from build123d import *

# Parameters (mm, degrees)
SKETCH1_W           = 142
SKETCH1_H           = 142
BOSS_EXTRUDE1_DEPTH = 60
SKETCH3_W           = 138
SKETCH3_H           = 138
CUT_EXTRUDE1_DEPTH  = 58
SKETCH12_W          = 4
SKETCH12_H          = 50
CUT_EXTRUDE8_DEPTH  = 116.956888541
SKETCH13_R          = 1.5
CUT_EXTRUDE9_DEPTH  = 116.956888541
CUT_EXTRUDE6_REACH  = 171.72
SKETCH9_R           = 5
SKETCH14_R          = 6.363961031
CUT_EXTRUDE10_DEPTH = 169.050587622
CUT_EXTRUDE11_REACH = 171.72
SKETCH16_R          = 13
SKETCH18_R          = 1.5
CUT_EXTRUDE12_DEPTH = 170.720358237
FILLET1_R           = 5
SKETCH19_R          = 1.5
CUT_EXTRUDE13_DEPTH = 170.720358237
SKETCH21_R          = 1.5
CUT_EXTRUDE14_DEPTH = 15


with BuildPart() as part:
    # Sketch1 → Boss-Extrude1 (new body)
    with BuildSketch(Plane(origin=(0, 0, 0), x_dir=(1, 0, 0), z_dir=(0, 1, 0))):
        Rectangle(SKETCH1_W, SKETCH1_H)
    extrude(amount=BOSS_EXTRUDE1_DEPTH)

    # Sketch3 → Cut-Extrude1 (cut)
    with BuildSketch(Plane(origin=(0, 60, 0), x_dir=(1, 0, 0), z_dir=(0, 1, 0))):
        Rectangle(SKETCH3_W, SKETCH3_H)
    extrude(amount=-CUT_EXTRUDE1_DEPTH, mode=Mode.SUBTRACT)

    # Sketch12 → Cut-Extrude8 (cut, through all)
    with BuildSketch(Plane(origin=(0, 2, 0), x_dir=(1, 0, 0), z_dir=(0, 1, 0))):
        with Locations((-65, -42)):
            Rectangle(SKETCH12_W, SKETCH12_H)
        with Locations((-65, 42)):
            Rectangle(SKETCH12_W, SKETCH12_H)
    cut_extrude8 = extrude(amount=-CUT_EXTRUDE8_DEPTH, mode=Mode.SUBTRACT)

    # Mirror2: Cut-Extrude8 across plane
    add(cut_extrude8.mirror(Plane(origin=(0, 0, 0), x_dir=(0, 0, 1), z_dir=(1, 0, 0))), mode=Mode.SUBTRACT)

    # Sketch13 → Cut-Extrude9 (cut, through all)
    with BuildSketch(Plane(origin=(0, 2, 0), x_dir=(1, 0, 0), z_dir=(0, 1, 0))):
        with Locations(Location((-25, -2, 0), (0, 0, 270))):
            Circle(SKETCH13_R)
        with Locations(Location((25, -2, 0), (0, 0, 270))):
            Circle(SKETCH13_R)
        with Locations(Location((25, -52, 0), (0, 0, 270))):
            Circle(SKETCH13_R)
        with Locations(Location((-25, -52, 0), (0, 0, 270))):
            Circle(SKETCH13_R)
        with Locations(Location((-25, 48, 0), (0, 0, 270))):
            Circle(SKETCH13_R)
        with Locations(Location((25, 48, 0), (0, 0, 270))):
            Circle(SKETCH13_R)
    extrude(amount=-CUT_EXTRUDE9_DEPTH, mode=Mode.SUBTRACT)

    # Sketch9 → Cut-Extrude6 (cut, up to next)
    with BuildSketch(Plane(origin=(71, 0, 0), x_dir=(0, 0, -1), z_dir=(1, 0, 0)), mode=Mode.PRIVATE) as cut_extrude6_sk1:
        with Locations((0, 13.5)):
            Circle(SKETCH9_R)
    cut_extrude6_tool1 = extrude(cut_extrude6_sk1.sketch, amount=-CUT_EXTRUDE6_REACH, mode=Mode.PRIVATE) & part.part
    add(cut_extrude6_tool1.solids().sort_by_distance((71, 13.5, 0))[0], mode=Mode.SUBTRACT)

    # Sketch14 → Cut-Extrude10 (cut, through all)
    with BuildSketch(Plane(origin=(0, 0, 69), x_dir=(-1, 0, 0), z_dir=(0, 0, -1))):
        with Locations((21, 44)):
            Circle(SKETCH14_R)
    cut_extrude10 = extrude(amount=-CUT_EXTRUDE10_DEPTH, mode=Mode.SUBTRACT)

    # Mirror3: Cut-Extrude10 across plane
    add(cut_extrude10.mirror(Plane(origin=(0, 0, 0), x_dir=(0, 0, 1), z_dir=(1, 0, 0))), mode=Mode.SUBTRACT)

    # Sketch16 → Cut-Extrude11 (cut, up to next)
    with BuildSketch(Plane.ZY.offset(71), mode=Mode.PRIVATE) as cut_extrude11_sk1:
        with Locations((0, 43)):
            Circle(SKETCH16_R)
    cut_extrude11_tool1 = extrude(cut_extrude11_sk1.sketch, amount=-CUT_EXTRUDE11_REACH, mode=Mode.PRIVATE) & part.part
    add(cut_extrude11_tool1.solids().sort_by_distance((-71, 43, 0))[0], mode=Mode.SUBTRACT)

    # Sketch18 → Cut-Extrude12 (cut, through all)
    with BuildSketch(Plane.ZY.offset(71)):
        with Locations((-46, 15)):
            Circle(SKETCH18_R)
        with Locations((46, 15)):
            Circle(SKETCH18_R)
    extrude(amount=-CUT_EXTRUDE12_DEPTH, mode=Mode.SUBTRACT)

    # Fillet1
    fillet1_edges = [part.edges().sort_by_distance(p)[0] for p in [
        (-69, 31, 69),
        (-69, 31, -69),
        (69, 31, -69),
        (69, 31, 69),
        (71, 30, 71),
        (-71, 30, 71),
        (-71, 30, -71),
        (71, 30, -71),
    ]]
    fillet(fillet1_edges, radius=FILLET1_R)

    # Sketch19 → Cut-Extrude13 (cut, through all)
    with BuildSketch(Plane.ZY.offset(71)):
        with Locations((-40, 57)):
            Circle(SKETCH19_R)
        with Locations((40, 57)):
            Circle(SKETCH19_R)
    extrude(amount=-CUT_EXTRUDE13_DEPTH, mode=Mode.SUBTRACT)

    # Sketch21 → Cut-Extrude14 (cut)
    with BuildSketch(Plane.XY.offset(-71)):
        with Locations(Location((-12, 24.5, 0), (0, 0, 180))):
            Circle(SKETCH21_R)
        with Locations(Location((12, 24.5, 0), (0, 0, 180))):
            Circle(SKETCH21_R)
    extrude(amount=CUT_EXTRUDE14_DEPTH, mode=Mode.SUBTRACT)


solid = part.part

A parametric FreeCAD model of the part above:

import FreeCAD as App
import Part
import Sketcher
Q = App.Units.Quantity


def edges_at(feature, points):
    """Names of the edges that pass closest to the given points."""
    edges = feature.Shape.Edges
    near = lambda p: min(range(len(edges)), key=lambda i: edges[i].distToShape(Part.Vertex(*p))[0])
    return sorted({f"Edge{near(p) + 1}" for p in points})


def add_polygon(sketch, points):
    """Adds a closed chain of lines whose ends are joined by coincident constraints."""
    first, n = sketch.GeometryCount, len(points)
    for a, b in zip(points, points[1:] + points[:1]):
        sketch.addGeometry(Part.LineSegment(App.Vector(*a, 0), App.Vector(*b, 0)), False)
    for i in range(n):
        sketch.addConstraint(Sketcher.Constraint("Coincident", first + i, 2, first + (i + 1) % n, 1))

doc = App.newDocument("Part")
body = doc.addObject("PartDesign::Body", "Body")

sketch1 = body.newObject("Sketcher::SketchObject", "Sketch")
sketch1.AttachmentSupport = (doc.getObject("XZ_Plane"), [""])
sketch1.MapMode = "FlatFace"
add_polygon(sketch1, [(-71, -71), (-71, 71), (71, 71), (71, -71)])
sketch1.addConstraint(Sketcher.Constraint("Vertical", 0))
sketch1.addConstraint(Sketcher.Constraint("Horizontal", 1))
sketch1.addConstraint(Sketcher.Constraint("Vertical", 2))
sketch1.addConstraint(Sketcher.Constraint("Horizontal", 3))
sketch1.addConstraint(Sketcher.Constraint("Symmetric", 0, 2, 2, 2, -1, 1))
sketch1.addConstraint(Sketcher.Constraint("Equal", 3, 0))
sketch1.addConstraint(Sketcher.Constraint("DistanceX", 1, 1, 1, 2, Q("142 mm")))
pad1 = body.newObject("PartDesign::Pad", "Pad")
pad1.Profile = sketch1
pad1.Length = 60
pad1.Reversed = True

sketch2 = body.newObject("Sketcher::SketchObject", "Sketch001")
sketch2.AttachmentSupport = (doc.getObject("XZ_Plane"), [""])
sketch2.MapMode = "FlatFace"
sketch2.AttachmentOffset = App.Placement(App.Vector(0, 0, -60), App.Rotation())
add_polygon(sketch2, [(-69, -69), (-69, 69), (69, 69), (69, -69)])
sketch2.addConstraint(Sketcher.Constraint("Vertical", 0))
sketch2.addConstraint(Sketcher.Constraint("Horizontal", 1))
sketch2.addConstraint(Sketcher.Constraint("Vertical", 2))
sketch2.addConstraint(Sketcher.Constraint("Horizontal", 3))
sketch2.addConstraint(Sketcher.Constraint("Symmetric", 0, 2, 2, 2, -1, 1))
sketch2.addConstraint(Sketcher.Constraint("Equal", 3, 0))
sketch2.addConstraint(Sketcher.Constraint("DistanceX", 1, 1, 1, 2, Q("138 mm")))
pocket1 = body.newObject("PartDesign::Pocket", "Pocket")
pocket1.Profile = sketch2
pocket1.Length = 58
pocket1.Reversed = True

sketch3 = body.newObject("Sketcher::SketchObject", "Sketch002")
sketch3.AttachmentSupport = (doc.getObject("XZ_Plane"), [""])
sketch3.MapMode = "FlatFace"
sketch3.AttachmentOffset = App.Placement(App.Vector(0, 0, -2), App.Rotation())
add_polygon(sketch3, [(-67, 17), (-67, 67), (-63, 67), (-63, 17)])
add_polygon(sketch3, [(-67, -67), (-67, -17), (-63, -17), (-63, -67)])
sketch3.addConstraint(Sketcher.Constraint("Vertical", 0))
sketch3.addConstraint(Sketcher.Constraint("Horizontal", 1))
sketch3.addConstraint(Sketcher.Constraint("Vertical", 2))
sketch3.addConstraint(Sketcher.Constraint("Horizontal", 3))
sketch3.addConstraint(Sketcher.Constraint("Vertical", 4))
sketch3.addConstraint(Sketcher.Constraint("Horizontal", 5))
sketch3.addConstraint(Sketcher.Constraint("Vertical", 6))
sketch3.addConstraint(Sketcher.Constraint("Horizontal", 7))
sketch3.addConstraint(Sketcher.Constraint("Symmetric", 3, 2, 4, 2, -1))
sketch3.addConstraint(Sketcher.Constraint("Symmetric", 1, 2, 6, 2, -1))
sketch3.addConstraint(Sketcher.Constraint("DistanceX", 1, 1, 1, 2, Q("4 mm")))
sketch3.addConstraint(Sketcher.Constraint("DistanceY", 0, 1, 0, 2, Q("50 mm")))
sketch3.addConstraint(Sketcher.Constraint("DistanceX", 0, 2, -1, 1, Q("67 mm")))
sketch3.addConstraint(Sketcher.Constraint("DistanceY", -1, 1, 0, 2, Q("67 mm")))
pocket2 = body.newObject("PartDesign::Pocket", "Pocket001")
pocket2.Profile = sketch3
pocket2.Type = "ThroughAll"
pocket2.Reversed = True
doc.recompute()

mirrored = body.newObject("PartDesign::Mirrored", "Mirrored")
mirrored.Originals = [pocket2]
mirrored.MirrorPlane = (doc.getObject("YZ_Plane"), [""])
body.Tip = mirrored

sketch4 = body.newObject("Sketcher::SketchObject", "Sketch003")
sketch4.AttachmentSupport = (doc.getObject("XZ_Plane"), [""])
sketch4.MapMode = "FlatFace"
sketch4.AttachmentOffset = App.Placement(App.Vector(0, 0, -2), App.Rotation())
sketch4.addGeometry(Part.Circle(App.Vector(-25, 2, 0), App.Vector(0, 0, 1), 1.5), False)
sketch4.addGeometry(Part.Circle(App.Vector(25, 2, 0), App.Vector(0, 0, 1), 1.5), False)
sketch4.addGeometry(Part.Circle(App.Vector(25, 52, 0), App.Vector(0, 0, 1), 1.5), False)
sketch4.addGeometry(Part.Circle(App.Vector(-25, 52, 0), App.Vector(0, 0, 1), 1.5), False)
sketch4.addGeometry(Part.Circle(App.Vector(-25, -48, 0), App.Vector(0, 0, 1), 1.5), False)
sketch4.addGeometry(Part.Circle(App.Vector(25, -48, 0), App.Vector(0, 0, 1), 1.5), False)
sketch4.addConstraint(Sketcher.Constraint("Equal", 0, 1))
sketch4.addConstraint(Sketcher.Constraint("Equal", 1, 2))
sketch4.addConstraint(Sketcher.Constraint("Equal", 2, 3))
sketch4.addConstraint(Sketcher.Constraint("Equal", 3, 4))
sketch4.addConstraint(Sketcher.Constraint("Equal", 4, 5))
sketch4.addConstraint(Sketcher.Constraint("Symmetric", 0, 3, 1, 3, -2))
sketch4.addConstraint(Sketcher.Constraint("Symmetric", 2, 3, 3, 3, -2))
sketch4.addConstraint(Sketcher.Constraint("Symmetric", 4, 3, 5, 3, -2))
sketch4.addConstraint(Sketcher.Constraint("Vertical", 1, 3, 2, 3))
sketch4.addConstraint(Sketcher.Constraint("Vertical", 3, 3, 4, 3))
sketch4.addConstraint(Sketcher.Constraint("Diameter", 0, Q("3 mm")))
sketch4.addConstraint(Sketcher.Constraint("DistanceX", 0, 3, -1, 1, Q("25 mm")))
sketch4.addConstraint(Sketcher.Constraint("DistanceY", -1, 1, 0, 3, Q("2 mm")))
sketch4.addConstraint(Sketcher.Constraint("DistanceY", -1, 1, 2, 3, Q("52 mm")))
sketch4.addConstraint(Sketcher.Constraint("DistanceY", 4, 3, -1, 1, Q("48 mm")))
pocket3 = body.newObject("PartDesign::Pocket", "Pocket002")
pocket3.Profile = sketch4
pocket3.Type = "ThroughAll"
pocket3.Reversed = True

sketch5 = body.newObject("Sketcher::SketchObject", "Sketch004")
sketch5.AttachmentSupport = (doc.getObject("YZ_Plane"), [""])
sketch5.MapMode = "FlatFace"
sketch5.AttachmentOffset = App.Placement(App.Vector(0, 0, 71), App.Rotation())
sketch5.addGeometry(Part.Circle(App.Vector(14, 0, 0), App.Vector(0, 0, 1), 5), False)
sketch5.addConstraint(Sketcher.Constraint("PointOnObject", 0, 3, -1))
sketch5.addConstraint(Sketcher.Constraint("Diameter", 0, Q("10 mm")))
sketch5.addConstraint(Sketcher.Constraint("DistanceX", -1, 1, 0, 3, Q("13.5 mm")))
pocket4 = body.newObject("PartDesign::Pocket", "Pocket003")
pocket4.Profile = sketch5
pocket4.Type = "UpToFirst"

sketch6 = body.newObject("Sketcher::SketchObject", "Sketch005")
sketch6.AttachmentSupport = (doc.getObject("XY_Plane"), [""])
sketch6.MapMode = "FlatFace"
sketch6.AttachmentOffset = App.Placement(App.Vector(0, 0, 69), App.Rotation())
sketch6.addGeometry(Part.Circle(App.Vector(-21, 44, 0), App.Vector(0, 0, 1), 6), False)
sketch6.addConstraint(Sketcher.Constraint("DistanceX", 0, 3, -1, 1, Q("21 mm")))
sketch6.addConstraint(Sketcher.Constraint("DistanceY", -1, 1, 0, 3, Q("44 mm")))
sketch6.addConstraint(Sketcher.Constraint("Diameter", 0, Q("12.727922 mm")))
pocket5 = body.newObject("PartDesign::Pocket", "Pocket004")
pocket5.Profile = sketch6
pocket5.Type = "ThroughAll"
pocket5.Reversed = True
doc.recompute()

mirrored2 = body.newObject("PartDesign::Mirrored", "Mirrored001")
mirrored2.Originals = [pocket5]
mirrored2.MirrorPlane = (doc.getObject("YZ_Plane"), [""])
body.Tip = mirrored2

sketch7 = body.newObject("Sketcher::SketchObject", "Sketch006")
sketch7.AttachmentSupport = (doc.getObject("YZ_Plane"), [""])
sketch7.MapMode = "FlatFace"
sketch7.AttachmentOffset = App.Placement(App.Vector(0, 0, -71), App.Rotation())
sketch7.addGeometry(Part.Circle(App.Vector(43, 0, 0), App.Vector(0, 0, 1), 13), False)
sketch7.addConstraint(Sketcher.Constraint("PointOnObject", 0, 3, -1))
sketch7.addConstraint(Sketcher.Constraint("Diameter", 0, Q("26 mm")))
sketch7.addConstraint(Sketcher.Constraint("DistanceX", -1, 1, 0, 3, Q("43 mm")))
pocket6 = body.newObject("PartDesign::Pocket", "Pocket005")
pocket6.Profile = sketch7
pocket6.Type = "UpToFirst"
pocket6.Reversed = True

sketch8 = body.newObject("Sketcher::SketchObject", "Sketch007")
sketch8.AttachmentSupport = (doc.getObject("YZ_Plane"), [""])
sketch8.MapMode = "FlatFace"
sketch8.AttachmentOffset = App.Placement(App.Vector(0, 0, -71), App.Rotation())
sketch8.addGeometry(Part.Circle(App.Vector(15, -46, 0), App.Vector(0, 0, 1), 1.5), False)
sketch8.addGeometry(Part.Circle(App.Vector(15, 46, 0), App.Vector(0, 0, 1), 1.5), False)
sketch8.addConstraint(Sketcher.Constraint("Equal", 0, 1))
sketch8.addConstraint(Sketcher.Constraint("Symmetric", 0, 3, 1, 3, -1))
sketch8.addConstraint(Sketcher.Constraint("Diameter", 0, Q("3 mm")))
sketch8.addConstraint(Sketcher.Constraint("DistanceX", -1, 1, 0, 3, Q("15 mm")))
sketch8.addConstraint(Sketcher.Constraint("DistanceY", 0, 3, -1, 1, Q("46 mm")))
pocket7 = body.newObject("PartDesign::Pocket", "Pocket006")
pocket7.Profile = sketch8
pocket7.Type = "ThroughAll"
pocket7.Reversed = True
doc.recompute()

fillet = body.newObject("PartDesign::Fillet", "Fillet")
fillet.Base = (pocket7, edges_at(pocket7, [
    (-69, 31, 69),
    (-69, 31, -69),
    (69, 31, -69),
    (69, 31, 69),
    (71, 30, 71),
    (-71, 30, 71),
    (-71, 30, -71),
    (71, 30, -71),
]))
fillet.Radius = 5

sketch9 = body.newObject("Sketcher::SketchObject", "Sketch008")
sketch9.AttachmentSupport = (doc.getObject("YZ_Plane"), [""])
sketch9.MapMode = "FlatFace"
sketch9.AttachmentOffset = App.Placement(App.Vector(0, 0, -71), App.Rotation())
sketch9.addGeometry(Part.Circle(App.Vector(57, -40, 0), App.Vector(0, 0, 1), 1.5), False)
sketch9.addGeometry(Part.Circle(App.Vector(57, 40, 0), App.Vector(0, 0, 1), 1.5), False)
sketch9.addConstraint(Sketcher.Constraint("Equal", 0, 1))
sketch9.addConstraint(Sketcher.Constraint("Symmetric", 0, 3, 1, 3, -1))
sketch9.addConstraint(Sketcher.Constraint("Diameter", 0, Q("3 mm")))
sketch9.addConstraint(Sketcher.Constraint("DistanceX", -1, 1, 0, 3, Q("57 mm")))
sketch9.addConstraint(Sketcher.Constraint("DistanceY", 0, 3, -1, 1, Q("40 mm")))
pocket8 = body.newObject("PartDesign::Pocket", "Pocket007")
pocket8.Profile = sketch9
pocket8.Type = "ThroughAll"
pocket8.Reversed = True

sketch10 = body.newObject("Sketcher::SketchObject", "Sketch009")
sketch10.AttachmentSupport = (doc.getObject("XY_Plane"), [""])
sketch10.MapMode = "FlatFace"
sketch10.AttachmentOffset = App.Placement(App.Vector(0, 0, -71), App.Rotation())
sketch10.addGeometry(Part.Circle(App.Vector(-12, 24.5, 0), App.Vector(0, 0, 1), 1.5), False)
sketch10.addGeometry(Part.Circle(App.Vector(12, 24.5, 0), App.Vector(0, 0, 1), 1.5), False)
sketch10.addConstraint(Sketcher.Constraint("Equal", 0, 1))
sketch10.addConstraint(Sketcher.Constraint("Symmetric", 0, 3, 1, 3, -2))
sketch10.addConstraint(Sketcher.Constraint("Diameter", 0, Q("3 mm")))
sketch10.addConstraint(Sketcher.Constraint("DistanceX", 0, 3, -1, 1, Q("12 mm")))
sketch10.addConstraint(Sketcher.Constraint("DistanceY", -1, 1, 0, 3, Q("24.5 mm")))
pocket9 = body.newObject("PartDesign::Pocket", "Pocket008")
pocket9.Profile = sketch10
pocket9.Length = 15
pocket9.Reversed = True

doc.recompute()
